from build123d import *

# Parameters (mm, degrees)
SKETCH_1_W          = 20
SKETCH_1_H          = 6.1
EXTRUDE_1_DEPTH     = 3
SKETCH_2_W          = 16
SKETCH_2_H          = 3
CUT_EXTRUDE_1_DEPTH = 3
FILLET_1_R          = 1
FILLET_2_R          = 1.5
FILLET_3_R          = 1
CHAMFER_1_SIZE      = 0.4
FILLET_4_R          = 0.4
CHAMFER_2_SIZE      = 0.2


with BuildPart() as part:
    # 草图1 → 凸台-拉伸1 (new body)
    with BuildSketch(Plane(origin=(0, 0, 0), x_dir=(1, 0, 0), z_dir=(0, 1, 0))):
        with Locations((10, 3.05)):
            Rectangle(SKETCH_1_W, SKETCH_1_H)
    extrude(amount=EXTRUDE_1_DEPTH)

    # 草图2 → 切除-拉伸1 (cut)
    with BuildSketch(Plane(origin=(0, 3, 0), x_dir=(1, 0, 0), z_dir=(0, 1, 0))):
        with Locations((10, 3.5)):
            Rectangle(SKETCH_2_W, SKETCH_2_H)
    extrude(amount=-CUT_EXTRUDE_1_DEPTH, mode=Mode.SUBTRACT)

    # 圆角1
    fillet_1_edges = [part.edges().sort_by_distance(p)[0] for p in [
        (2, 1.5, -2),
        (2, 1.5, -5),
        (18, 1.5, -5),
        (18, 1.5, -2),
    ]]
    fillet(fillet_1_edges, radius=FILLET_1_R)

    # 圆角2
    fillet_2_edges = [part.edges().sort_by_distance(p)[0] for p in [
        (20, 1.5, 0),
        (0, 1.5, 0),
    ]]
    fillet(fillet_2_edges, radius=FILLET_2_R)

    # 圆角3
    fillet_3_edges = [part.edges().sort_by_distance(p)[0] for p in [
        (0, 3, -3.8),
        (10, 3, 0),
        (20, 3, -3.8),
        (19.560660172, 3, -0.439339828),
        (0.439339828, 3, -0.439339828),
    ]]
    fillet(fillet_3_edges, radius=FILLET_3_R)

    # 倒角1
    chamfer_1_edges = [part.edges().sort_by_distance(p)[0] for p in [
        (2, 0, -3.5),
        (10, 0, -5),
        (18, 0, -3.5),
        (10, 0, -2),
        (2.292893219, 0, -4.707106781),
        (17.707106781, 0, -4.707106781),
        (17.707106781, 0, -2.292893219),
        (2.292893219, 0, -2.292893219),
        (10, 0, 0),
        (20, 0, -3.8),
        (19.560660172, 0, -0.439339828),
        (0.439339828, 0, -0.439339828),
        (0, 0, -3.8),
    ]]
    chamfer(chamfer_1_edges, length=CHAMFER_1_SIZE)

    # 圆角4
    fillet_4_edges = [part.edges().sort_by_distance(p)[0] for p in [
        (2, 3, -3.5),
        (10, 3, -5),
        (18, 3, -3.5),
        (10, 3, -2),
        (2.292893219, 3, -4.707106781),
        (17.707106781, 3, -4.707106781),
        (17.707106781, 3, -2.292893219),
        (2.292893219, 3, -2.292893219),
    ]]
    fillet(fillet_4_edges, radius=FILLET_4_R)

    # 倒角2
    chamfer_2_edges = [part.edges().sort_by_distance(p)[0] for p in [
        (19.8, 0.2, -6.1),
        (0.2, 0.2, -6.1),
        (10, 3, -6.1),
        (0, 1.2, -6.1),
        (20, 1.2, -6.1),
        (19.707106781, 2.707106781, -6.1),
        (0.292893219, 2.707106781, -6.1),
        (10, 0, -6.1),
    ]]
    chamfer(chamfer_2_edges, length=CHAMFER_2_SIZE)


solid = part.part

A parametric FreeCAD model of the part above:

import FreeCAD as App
import Part
import Sketcher


def edges_at(feature, points):
    """Names of the edges that pass closest to the given points."""
    edges = feature.Shape.Edges
    near = lambda p: min(range(len(edges)), key=lambda i: edges[i].distToShape(Part.Vertex(*p))[0])
    return sorted({f"Edge{near(p) + 1}" for p in points})


def add_polygon(sketch, points):
    """Adds a closed chain of lines whose ends are joined by coincident constraints."""
    first, n = sketch.GeometryCount, len(points)
    for a, b in zip(points, points[1:] + points[:1]):
        sketch.addGeometry(Part.LineSegment(App.Vector(*a, 0), App.Vector(*b, 0)), False)
    for i in range(n):
        sketch.addConstraint(Sketcher.Constraint("Coincident", first + i, 2, first + (i + 1) % n, 1))

doc = App.newDocument("Part")
body = doc.addObject("PartDesign::Body", "Body")

sketch1 = body.newObject("Sketcher::SketchObject", "Sketch")
sketch1.AttachmentSupport = (doc.getObject("XZ_Plane"), [""])
sketch1.MapMode = "FlatFace"
add_polygon(sketch1, [(0, -6), (0, 0), (20, 0), (20, -6)])
sketch1.addConstraint(Sketcher.Constraint("Vertical", 0))
sketch1.addConstraint(Sketcher.Constraint("Horizontal", 1))
sketch1.addConstraint(Sketcher.Constraint("Vertical", 2))
sketch1.addConstraint(Sketcher.Constraint("Horizontal", 3))
sketch1.addConstraint(Sketcher.Constraint("Coincident", 0, 2, -1, 1))
sketch1.addConstraint(Sketcher.Constraint("DistanceX", 1, 1, 1, 2, 20.0))
sketch1.addConstraint(Sketcher.Constraint("DistanceY", 0, 1, 0, 2, 6.1))
pad1 = body.newObject("PartDesign::Pad", "Pad")
pad1.Profile = sketch1
pad1.Length = 3
pad1.Reversed = True

sketch2 = body.newObject("Sketcher::SketchObject", "Sketch001")
sketch2.AttachmentSupport = (doc.getObject("XZ_Plane"), [""])
sketch2.MapMode = "FlatFace"
sketch2.AttachmentOffset = App.Placement(App.Vector(0, 0, -3), App.Rotation())
add_polygon(sketch2, [(2, -5), (2, -2), (18, -2), (18, -5)])
sketch2.addConstraint(Sketcher.Constraint("Vertical", 0))
sketch2.addConstraint(Sketcher.Constraint("Horizontal", 1))
sketch2.addConstraint(Sketcher.Constraint("Vertical", 2))
sketch2.addConstraint(Sketcher.Constraint("Horizontal", 3))
sketch2.addConstraint(Sketcher.Constraint("DistanceX", 1, 1, 1, 2, 16.0))
sketch2.addConstraint(Sketcher.Constraint("DistanceY", 0, 1, 0, 2, 3.0))
sketch2.addConstraint(Sketcher.Constraint("DistanceX", -1, 1, 0, 2, 2.0))
sketch2.addConstraint(Sketcher.Constraint("DistanceY", 0, 2, -1, 1, 2.0))
pocket1 = body.newObject("PartDesign::Pocket", "Pocket")
pocket1.Profile = sketch2
pocket1.Length = 3
pocket1.Reversed = True
doc.recompute()

fillet = body.newObject("PartDesign::Fillet", "Fillet")
fillet.Base = (pocket1, edges_at(pocket1, [
    (2, 1.5, -2),
    (2, 1.5, -5),
    (18, 1.5, -5),
    (18, 1.5, -2),
]))
fillet.Radius = 1
doc.recompute()

fillet2 = body.newObject("PartDesign::Fillet", "Fillet001")
fillet2.Base = (fillet, edges_at(fillet, [(20, 1.5, 0), (0, 1.5, 0)]))
fillet2.Radius = 1.5
doc.recompute()

fillet3 = body.newObject("PartDesign::Fillet", "Fillet002")
fillet3.Base = (fillet2, edges_at(fillet2, [
    (0, 3, -3.8),
    (10, 3, 0),
    (20, 3, -3.8),
    (19.561, 3, -0.439),
    (0.439, 3, -0.439),
]))
fillet3.Radius = 1
doc.recompute()

chamfer = body.newObject("PartDesign::Chamfer", "Chamfer")
chamfer.Base = (fillet3, edges_at(fillet3, [
    (2, 0, -3.5),
    (10, 0, -5),
    (18, 0, -3.5),
    (10, 0, -2),
    (2.293, 0, -4.707),
    (17.707, 0, -4.707),
    (17.707, 0, -2.293),
    (2.293, 0, -2.293),
    (10, 0, 0),
    (20, 0, -3.8),
    (19.561, 0, -0.439),
    (0.439, 0, -0.439),
    (0, 0, -3.8),
]))
chamfer.Size = 0.4
doc.recompute()

fillet4 = body.newObject("PartDesign::Fillet", "Fillet003")
fillet4.Base = (chamfer, edges_at(chamfer, [
    (2, 3, -3.5),
    (10, 3, -5),
    (18, 3, -3.5),
    (10, 3, -2),
    (2.293, 3, -4.707),
    (17.707, 3, -4.707),
    (17.707, 3, -2.293),
    (2.293, 3, -2.293),
]))
fillet4.Radius = 0.4
doc.recompute()

chamfer2 = body.newObject("PartDesign::Chamfer", "Chamfer001")
chamfer2.Base = (fillet4, edges_at(fillet4, [
    (19.8, 0.2, -6.1),
    (0.2, 0.2, -6.1),
    (10, 3, -6.1),
    (0, 1.2, -6.1),
    (20, 1.2, -6.1),
    (19.707, 2.707, -6.1),
    (0.293, 2.707, -6.1),
    (10, 0, -6.1),
]))
chamfer2.Size = 0.2

doc.recompute()
